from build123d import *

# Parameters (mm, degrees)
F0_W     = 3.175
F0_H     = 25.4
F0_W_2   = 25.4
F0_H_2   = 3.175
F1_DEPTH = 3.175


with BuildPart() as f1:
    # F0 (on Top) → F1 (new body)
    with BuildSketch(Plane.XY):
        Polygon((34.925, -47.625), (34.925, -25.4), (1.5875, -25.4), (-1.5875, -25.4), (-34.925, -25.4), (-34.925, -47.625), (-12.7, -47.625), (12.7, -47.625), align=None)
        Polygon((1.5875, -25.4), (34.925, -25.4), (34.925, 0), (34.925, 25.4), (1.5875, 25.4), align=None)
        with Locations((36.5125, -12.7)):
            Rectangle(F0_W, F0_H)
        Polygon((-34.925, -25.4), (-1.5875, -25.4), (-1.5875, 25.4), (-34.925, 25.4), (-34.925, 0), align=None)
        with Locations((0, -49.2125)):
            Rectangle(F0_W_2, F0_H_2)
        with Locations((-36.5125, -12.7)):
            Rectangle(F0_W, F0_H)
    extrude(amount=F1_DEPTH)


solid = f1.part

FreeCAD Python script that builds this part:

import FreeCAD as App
import Part
import Sketcher
Q = App.Units.Quantity

doc = App.newDocument("Part")
body = doc.addObject("PartDesign::Body", "Body")

sketch1 = body.newObject("Sketcher::SketchObject", "Sketch")
sketch1.AttachmentSupport = (doc.getObject("XY_Plane"), [""])
sketch1.MapMode = "FlatFace"
sketch1.addGeometry([
    Part.LineSegment(App.Vector(34.9, -47.6, 0), App.Vector(34.9, -25.4, 0)),
    Part.LineSegment(App.Vector(34.9, -25.4, 0), App.Vector(38.1, -25.4, 0)),
    Part.LineSegment(App.Vector(38.1, -25.4, 0), App.Vector(38.1, 0, 0)),
    Part.LineSegment(App.Vector(38.1, 0, 0), App.Vector(34.9, 0, 0)),
    Part.LineSegment(App.Vector(34.9, 0, 0), App.Vector(34.9, 25.4, 0)),
    Part.LineSegment(App.Vector(34.9, 25.4, 0), App.Vector(1.6, 25.4, 0)),
    Part.LineSegment(App.Vector(1.6, 25.4, 0), App.Vector(1.6, -25.4, 0)),
    Part.LineSegment(App.Vector(1.6, -25.4, 0), App.Vector(-1.6, -25.4, 0)),
    Part.LineSegment(App.Vector(-1.6, -25.4, 0), App.Vector(-1.6, 25.4, 0)),
    Part.LineSegment(App.Vector(-1.6, 25.4, 0), App.Vector(-34.9, 25.4, 0)),
    Part.LineSegment(App.Vector(-34.9, 25.4, 0), App.Vector(-34.9, 0, 0)),
    Part.LineSegment(App.Vector(-34.9, 0, 0), App.Vector(-38.1, 0, 0)),
    Part.LineSegment(App.Vector(-38.1, 0, 0), App.Vector(-38.1, -25.4, 0)),
    Part.LineSegment(App.Vector(-38.1, -25.4, 0), App.Vector(-34.9, -25.4, 0)),
    Part.LineSegment(App.Vector(-34.9, -25.4, 0), App.Vector(-34.9, -47.6, 0)),
    Part.LineSegment(App.Vector(-34.9, -47.6, 0), App.Vector(-12.7, -47.6, 0)),
    Part.LineSegment(App.Vector(-12.7, -47.6, 0), App.Vector(-12.7, -50.8, 0)),
    Part.LineSegment(App.Vector(-12.7, -50.8, 0), App.Vector(12.7, -50.8, 0)),
    Part.LineSegment(App.Vector(12.7, -50.8, 0), App.Vector(12.7, -47.6, 0)),
    Part.LineSegment(App.Vector(12.7, -47.6, 0), App.Vector(34.9, -47.6, 0)),
], False)
sketch1.addConstraint([
    Sketcher.Constraint("Coincident", 0, 2, 1, 1),
    Sketcher.Constraint("Coincident", 1, 2, 2, 1),
    Sketcher.Constraint("Coincident", 2, 2, 3, 1),
    Sketcher.Constraint("Coincident", 3, 2, 4, 1),
    Sketcher.Constraint("Coincident", 4, 2, 5, 1),
    Sketcher.Constraint("Coincident", 5, 2, 6, 1),
    Sketcher.Constraint("Coincident", 6, 2, 7, 1),
    Sketcher.Constraint("Coincident", 7, 2, 8, 1),
    Sketcher.Constraint("Coincident", 8, 2, 9, 1),
    Sketcher.Constraint("Coincident", 9, 2, 10, 1),
    Sketcher.Constraint("Coincident", 10, 2, 11, 1),
    Sketcher.Constraint("Coincident", 11, 2, 12, 1),
    Sketcher.Constraint("Coincident", 12, 2, 13, 1),
    Sketcher.Constraint("Coincident", 13, 2, 14, 1),
    Sketcher.Constraint("Coincident", 14, 2, 15, 1),
    Sketcher.Constraint("Coincident", 15, 2, 16, 1),
    Sketcher.Constraint("Coincident", 16, 2, 17, 1),
    Sketcher.Constraint("Coincident", 17, 2, 18, 1),
    Sketcher.Constraint("Coincident", 18, 2, 19, 1),
    Sketcher.Constraint("Coincident", 19, 2, 0, 1),
    Sketcher.Constraint("Vertical", 0),
    Sketcher.Constraint("Horizontal", 1),
    Sketcher.Constraint("Vertical", 2),
    Sketcher.Constraint("Horizontal", 3),
    Sketcher.Constraint("Vertical", 4),
    Sketcher.Constraint("Horizontal", 5),
    Sketcher.Constraint("Vertical", 6),
    Sketcher.Constraint("Horizontal", 7),
    Sketcher.Constraint("Vertical", 8),
    Sketcher.Constraint("Horizontal", 9),
    Sketcher.Constraint("Vertical", 10),
    Sketcher.Constraint("Horizontal", 11),
    Sketcher.Constraint("Vertical", 12),
    Sketcher.Constraint("Horizontal", 13),
    Sketcher.Constraint("Vertical", 14),
    Sketcher.Constraint("Horizontal", 15),
    Sketcher.Constraint("Vertical", 16),
    Sketcher.Constraint("Horizontal", 17),
    Sketcher.Constraint("Vertical", 18),
    Sketcher.Constraint("Horizontal", 19),
    Sketcher.Constraint("Symmetric", 5, 2, 7, 2, -1, 1),
    Sketcher.Constraint("Symmetric", 0, 2, 9, 2, -1, 1),
    Sketcher.Constraint("Symmetric", 3, 2, 10, 2, -1, 1),
    Sketcher.Constraint("Symmetric", 4, 2, 13, 2, -1, 1),
    Sketcher.Constraint("Symmetric", 2, 2, 11, 2, -2),
    Sketcher.Constraint("Symmetric", 15, 2, 18, 2, -2),
    Sketcher.Constraint("Horizontal", 1, 2, 6, 2),
    Sketcher.Constraint("Equal", 3, 7),
    Sketcher.Constraint("Equal", 19, 0),
    Sketcher.Constraint("Equal", 17, 2),
    Sketcher.Constraint("Equal", 13, 16),
    Sketcher.Constraint("DistanceX", 17, 1, 17, 2, Q("1 in")),
    Sketcher.Constraint("DistanceY", 16, 2, -1, 1, Q("2 in")),
    Sketcher.Constraint("DistanceX", 1, 1, 1, 2, Q("0.125 in")),
])
pad1 = body.newObject("PartDesign::Pad", "Pad")
pad1.Profile = sketch1
pad1.Length = Q("0.125 in")

doc.recompute()
